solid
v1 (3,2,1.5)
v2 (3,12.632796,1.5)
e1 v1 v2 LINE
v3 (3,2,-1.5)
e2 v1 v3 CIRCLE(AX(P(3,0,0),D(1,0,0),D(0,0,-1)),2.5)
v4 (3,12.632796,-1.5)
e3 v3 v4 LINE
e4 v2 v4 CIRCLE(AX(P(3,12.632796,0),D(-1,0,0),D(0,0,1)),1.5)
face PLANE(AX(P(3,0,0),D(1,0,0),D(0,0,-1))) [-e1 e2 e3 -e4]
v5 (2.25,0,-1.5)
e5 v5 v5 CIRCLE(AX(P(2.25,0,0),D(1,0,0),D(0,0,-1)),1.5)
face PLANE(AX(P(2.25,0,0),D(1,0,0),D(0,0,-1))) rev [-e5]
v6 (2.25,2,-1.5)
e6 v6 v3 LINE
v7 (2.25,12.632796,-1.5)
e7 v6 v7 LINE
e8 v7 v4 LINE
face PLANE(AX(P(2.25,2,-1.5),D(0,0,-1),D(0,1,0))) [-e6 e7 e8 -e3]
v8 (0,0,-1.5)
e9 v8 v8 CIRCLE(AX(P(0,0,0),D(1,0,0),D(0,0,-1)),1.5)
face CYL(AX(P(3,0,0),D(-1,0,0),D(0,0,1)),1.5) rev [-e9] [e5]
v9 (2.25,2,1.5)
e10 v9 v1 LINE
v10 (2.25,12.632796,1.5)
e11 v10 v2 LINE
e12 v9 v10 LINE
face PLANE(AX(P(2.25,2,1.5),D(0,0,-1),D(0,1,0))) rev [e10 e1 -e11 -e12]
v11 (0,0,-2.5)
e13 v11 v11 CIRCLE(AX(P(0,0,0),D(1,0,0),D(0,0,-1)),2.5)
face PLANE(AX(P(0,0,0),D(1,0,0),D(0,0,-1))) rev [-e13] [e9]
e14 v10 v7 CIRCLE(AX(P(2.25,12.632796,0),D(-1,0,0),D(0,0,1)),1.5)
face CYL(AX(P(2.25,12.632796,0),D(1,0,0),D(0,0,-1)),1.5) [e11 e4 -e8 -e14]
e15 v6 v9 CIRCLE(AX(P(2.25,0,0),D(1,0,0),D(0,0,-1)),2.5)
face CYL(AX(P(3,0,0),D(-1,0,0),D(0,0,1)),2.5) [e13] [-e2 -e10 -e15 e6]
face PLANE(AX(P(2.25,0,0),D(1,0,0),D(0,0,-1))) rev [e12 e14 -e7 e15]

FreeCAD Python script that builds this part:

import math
import FreeCAD as App
import Part
import Sketcher

V = App.Vector
Q = App.Units.Quantity

doc = App.newDocument("Part")
params = doc.addObject("Spreadsheet::Sheet", "Params")
for row, (alias, value) in enumerate([
    ("sketch1_diameter", "5 mm"),
    ("sketch1_diameter2", "3 mm"),
    ("pad1_length", "3 mm"),
    ("sketch2_radius", "2.5 mm"),
    ("sketch2_radius2", "1.5 mm"),
    ("pad2_length", "0.75 mm"),
], start=1):
    params.set(f"A{row}", alias)
    params.set(f"B{row}", "=" + value)
    params.setAlias(f"B{row}", alias)

body = doc.addObject("PartDesign::Body", "Body")

sketch1 = body.newObject("Sketcher::SketchObject", "Sketch")
sketch1.AttachmentSupport = (doc.getObject("YZ_Plane"), [""])
sketch1.MapMode = "FlatFace"
sketch1.addGeometry([
    Part.Circle(V(0, 0, 0), V(0, 0, 1), 2.5),
    Part.Circle(V(0, 0, 0), V(0, 0, 1), 1.5),
], False)
sketch1.addConstraint([
    Sketcher.Constraint("Coincident", 0, 3, -1, 1),
    Sketcher.Constraint("Coincident", 1, 3, -1, 1),
    Sketcher.Constraint("Diameter", 0, Q("5 mm")),
    Sketcher.Constraint("Diameter", 1, Q("3 mm")),
])
sketch1.setExpression("Constraints[2]", "Params.sketch1_diameter")
sketch1.setExpression("Constraints[3]", "Params.sketch1_diameter2")
pad1 = body.newObject("PartDesign::Pad", "Pad")
pad1.Profile = sketch1
pad1.setExpression("Length", "Params.pad1_length")

sketch2 = body.newObject("Sketcher::SketchObject", "Sketch001")
sketch2.AttachmentSupport = (doc.getObject("YZ_Plane"), [""])
sketch2.MapMode = "FlatFace"
sketch2.AttachmentOffset = App.Placement(V(0, 0, 2.25), App.Rotation())
sketch2.addGeometry([
    Part.LineSegment(V(12.632796, 1.5, 0), V(2, 1.5, 0)),
    Part.ArcOfCircle(Part.Circle(V(0, 0, 0), V(0, 0, 1), 2.5), math.radians(36.869898), math.radians(323.130102)),
    Part.LineSegment(V(2, -1.5, 0), V(12.632796, -1.5, 0)),
    Part.ArcOfCircle(Part.Circle(V(12.632796, 0, 0), V(0, 0, 1), 1.5), math.radians(-90), math.radians(90)),
], False)
sketch2.addConstraint([
    Sketcher.Constraint("Coincident", 0, 2, 1, 1),
    Sketcher.Constraint("Coincident", 1, 2, 2, 1),
    Sketcher.Constraint("Tangent", 2, 2, 3, 1),
    Sketcher.Constraint("Tangent", 3, 2, 0, 1),
    Sketcher.Constraint("Horizontal", 0),
    Sketcher.Constraint("Horizontal", 2),
    Sketcher.Constraint("Coincident", 1, 3, -1, 1),
    Sketcher.Constraint("PointOnObject", 3, 3, -1),
    Sketcher.Constraint("Radius", 1, Q("2.5 mm")),
    Sketcher.Constraint("Radius", 3, Q("1.5 mm")),
    Sketcher.Constraint("DistanceX", 0, 2, 0, 1, Q("10.632796 mm")),
])
sketch2.setExpression("Constraints[8]", "Params.sketch2_radius")
sketch2.setExpression("Constraints[9]", "Params.sketch2_radius2")
pad2 = body.newObject("PartDesign::Pad", "Pad001")
pad2.Profile = sketch2
pad2.setExpression("Length", "Params.pad2_length")

doc.recompute()
